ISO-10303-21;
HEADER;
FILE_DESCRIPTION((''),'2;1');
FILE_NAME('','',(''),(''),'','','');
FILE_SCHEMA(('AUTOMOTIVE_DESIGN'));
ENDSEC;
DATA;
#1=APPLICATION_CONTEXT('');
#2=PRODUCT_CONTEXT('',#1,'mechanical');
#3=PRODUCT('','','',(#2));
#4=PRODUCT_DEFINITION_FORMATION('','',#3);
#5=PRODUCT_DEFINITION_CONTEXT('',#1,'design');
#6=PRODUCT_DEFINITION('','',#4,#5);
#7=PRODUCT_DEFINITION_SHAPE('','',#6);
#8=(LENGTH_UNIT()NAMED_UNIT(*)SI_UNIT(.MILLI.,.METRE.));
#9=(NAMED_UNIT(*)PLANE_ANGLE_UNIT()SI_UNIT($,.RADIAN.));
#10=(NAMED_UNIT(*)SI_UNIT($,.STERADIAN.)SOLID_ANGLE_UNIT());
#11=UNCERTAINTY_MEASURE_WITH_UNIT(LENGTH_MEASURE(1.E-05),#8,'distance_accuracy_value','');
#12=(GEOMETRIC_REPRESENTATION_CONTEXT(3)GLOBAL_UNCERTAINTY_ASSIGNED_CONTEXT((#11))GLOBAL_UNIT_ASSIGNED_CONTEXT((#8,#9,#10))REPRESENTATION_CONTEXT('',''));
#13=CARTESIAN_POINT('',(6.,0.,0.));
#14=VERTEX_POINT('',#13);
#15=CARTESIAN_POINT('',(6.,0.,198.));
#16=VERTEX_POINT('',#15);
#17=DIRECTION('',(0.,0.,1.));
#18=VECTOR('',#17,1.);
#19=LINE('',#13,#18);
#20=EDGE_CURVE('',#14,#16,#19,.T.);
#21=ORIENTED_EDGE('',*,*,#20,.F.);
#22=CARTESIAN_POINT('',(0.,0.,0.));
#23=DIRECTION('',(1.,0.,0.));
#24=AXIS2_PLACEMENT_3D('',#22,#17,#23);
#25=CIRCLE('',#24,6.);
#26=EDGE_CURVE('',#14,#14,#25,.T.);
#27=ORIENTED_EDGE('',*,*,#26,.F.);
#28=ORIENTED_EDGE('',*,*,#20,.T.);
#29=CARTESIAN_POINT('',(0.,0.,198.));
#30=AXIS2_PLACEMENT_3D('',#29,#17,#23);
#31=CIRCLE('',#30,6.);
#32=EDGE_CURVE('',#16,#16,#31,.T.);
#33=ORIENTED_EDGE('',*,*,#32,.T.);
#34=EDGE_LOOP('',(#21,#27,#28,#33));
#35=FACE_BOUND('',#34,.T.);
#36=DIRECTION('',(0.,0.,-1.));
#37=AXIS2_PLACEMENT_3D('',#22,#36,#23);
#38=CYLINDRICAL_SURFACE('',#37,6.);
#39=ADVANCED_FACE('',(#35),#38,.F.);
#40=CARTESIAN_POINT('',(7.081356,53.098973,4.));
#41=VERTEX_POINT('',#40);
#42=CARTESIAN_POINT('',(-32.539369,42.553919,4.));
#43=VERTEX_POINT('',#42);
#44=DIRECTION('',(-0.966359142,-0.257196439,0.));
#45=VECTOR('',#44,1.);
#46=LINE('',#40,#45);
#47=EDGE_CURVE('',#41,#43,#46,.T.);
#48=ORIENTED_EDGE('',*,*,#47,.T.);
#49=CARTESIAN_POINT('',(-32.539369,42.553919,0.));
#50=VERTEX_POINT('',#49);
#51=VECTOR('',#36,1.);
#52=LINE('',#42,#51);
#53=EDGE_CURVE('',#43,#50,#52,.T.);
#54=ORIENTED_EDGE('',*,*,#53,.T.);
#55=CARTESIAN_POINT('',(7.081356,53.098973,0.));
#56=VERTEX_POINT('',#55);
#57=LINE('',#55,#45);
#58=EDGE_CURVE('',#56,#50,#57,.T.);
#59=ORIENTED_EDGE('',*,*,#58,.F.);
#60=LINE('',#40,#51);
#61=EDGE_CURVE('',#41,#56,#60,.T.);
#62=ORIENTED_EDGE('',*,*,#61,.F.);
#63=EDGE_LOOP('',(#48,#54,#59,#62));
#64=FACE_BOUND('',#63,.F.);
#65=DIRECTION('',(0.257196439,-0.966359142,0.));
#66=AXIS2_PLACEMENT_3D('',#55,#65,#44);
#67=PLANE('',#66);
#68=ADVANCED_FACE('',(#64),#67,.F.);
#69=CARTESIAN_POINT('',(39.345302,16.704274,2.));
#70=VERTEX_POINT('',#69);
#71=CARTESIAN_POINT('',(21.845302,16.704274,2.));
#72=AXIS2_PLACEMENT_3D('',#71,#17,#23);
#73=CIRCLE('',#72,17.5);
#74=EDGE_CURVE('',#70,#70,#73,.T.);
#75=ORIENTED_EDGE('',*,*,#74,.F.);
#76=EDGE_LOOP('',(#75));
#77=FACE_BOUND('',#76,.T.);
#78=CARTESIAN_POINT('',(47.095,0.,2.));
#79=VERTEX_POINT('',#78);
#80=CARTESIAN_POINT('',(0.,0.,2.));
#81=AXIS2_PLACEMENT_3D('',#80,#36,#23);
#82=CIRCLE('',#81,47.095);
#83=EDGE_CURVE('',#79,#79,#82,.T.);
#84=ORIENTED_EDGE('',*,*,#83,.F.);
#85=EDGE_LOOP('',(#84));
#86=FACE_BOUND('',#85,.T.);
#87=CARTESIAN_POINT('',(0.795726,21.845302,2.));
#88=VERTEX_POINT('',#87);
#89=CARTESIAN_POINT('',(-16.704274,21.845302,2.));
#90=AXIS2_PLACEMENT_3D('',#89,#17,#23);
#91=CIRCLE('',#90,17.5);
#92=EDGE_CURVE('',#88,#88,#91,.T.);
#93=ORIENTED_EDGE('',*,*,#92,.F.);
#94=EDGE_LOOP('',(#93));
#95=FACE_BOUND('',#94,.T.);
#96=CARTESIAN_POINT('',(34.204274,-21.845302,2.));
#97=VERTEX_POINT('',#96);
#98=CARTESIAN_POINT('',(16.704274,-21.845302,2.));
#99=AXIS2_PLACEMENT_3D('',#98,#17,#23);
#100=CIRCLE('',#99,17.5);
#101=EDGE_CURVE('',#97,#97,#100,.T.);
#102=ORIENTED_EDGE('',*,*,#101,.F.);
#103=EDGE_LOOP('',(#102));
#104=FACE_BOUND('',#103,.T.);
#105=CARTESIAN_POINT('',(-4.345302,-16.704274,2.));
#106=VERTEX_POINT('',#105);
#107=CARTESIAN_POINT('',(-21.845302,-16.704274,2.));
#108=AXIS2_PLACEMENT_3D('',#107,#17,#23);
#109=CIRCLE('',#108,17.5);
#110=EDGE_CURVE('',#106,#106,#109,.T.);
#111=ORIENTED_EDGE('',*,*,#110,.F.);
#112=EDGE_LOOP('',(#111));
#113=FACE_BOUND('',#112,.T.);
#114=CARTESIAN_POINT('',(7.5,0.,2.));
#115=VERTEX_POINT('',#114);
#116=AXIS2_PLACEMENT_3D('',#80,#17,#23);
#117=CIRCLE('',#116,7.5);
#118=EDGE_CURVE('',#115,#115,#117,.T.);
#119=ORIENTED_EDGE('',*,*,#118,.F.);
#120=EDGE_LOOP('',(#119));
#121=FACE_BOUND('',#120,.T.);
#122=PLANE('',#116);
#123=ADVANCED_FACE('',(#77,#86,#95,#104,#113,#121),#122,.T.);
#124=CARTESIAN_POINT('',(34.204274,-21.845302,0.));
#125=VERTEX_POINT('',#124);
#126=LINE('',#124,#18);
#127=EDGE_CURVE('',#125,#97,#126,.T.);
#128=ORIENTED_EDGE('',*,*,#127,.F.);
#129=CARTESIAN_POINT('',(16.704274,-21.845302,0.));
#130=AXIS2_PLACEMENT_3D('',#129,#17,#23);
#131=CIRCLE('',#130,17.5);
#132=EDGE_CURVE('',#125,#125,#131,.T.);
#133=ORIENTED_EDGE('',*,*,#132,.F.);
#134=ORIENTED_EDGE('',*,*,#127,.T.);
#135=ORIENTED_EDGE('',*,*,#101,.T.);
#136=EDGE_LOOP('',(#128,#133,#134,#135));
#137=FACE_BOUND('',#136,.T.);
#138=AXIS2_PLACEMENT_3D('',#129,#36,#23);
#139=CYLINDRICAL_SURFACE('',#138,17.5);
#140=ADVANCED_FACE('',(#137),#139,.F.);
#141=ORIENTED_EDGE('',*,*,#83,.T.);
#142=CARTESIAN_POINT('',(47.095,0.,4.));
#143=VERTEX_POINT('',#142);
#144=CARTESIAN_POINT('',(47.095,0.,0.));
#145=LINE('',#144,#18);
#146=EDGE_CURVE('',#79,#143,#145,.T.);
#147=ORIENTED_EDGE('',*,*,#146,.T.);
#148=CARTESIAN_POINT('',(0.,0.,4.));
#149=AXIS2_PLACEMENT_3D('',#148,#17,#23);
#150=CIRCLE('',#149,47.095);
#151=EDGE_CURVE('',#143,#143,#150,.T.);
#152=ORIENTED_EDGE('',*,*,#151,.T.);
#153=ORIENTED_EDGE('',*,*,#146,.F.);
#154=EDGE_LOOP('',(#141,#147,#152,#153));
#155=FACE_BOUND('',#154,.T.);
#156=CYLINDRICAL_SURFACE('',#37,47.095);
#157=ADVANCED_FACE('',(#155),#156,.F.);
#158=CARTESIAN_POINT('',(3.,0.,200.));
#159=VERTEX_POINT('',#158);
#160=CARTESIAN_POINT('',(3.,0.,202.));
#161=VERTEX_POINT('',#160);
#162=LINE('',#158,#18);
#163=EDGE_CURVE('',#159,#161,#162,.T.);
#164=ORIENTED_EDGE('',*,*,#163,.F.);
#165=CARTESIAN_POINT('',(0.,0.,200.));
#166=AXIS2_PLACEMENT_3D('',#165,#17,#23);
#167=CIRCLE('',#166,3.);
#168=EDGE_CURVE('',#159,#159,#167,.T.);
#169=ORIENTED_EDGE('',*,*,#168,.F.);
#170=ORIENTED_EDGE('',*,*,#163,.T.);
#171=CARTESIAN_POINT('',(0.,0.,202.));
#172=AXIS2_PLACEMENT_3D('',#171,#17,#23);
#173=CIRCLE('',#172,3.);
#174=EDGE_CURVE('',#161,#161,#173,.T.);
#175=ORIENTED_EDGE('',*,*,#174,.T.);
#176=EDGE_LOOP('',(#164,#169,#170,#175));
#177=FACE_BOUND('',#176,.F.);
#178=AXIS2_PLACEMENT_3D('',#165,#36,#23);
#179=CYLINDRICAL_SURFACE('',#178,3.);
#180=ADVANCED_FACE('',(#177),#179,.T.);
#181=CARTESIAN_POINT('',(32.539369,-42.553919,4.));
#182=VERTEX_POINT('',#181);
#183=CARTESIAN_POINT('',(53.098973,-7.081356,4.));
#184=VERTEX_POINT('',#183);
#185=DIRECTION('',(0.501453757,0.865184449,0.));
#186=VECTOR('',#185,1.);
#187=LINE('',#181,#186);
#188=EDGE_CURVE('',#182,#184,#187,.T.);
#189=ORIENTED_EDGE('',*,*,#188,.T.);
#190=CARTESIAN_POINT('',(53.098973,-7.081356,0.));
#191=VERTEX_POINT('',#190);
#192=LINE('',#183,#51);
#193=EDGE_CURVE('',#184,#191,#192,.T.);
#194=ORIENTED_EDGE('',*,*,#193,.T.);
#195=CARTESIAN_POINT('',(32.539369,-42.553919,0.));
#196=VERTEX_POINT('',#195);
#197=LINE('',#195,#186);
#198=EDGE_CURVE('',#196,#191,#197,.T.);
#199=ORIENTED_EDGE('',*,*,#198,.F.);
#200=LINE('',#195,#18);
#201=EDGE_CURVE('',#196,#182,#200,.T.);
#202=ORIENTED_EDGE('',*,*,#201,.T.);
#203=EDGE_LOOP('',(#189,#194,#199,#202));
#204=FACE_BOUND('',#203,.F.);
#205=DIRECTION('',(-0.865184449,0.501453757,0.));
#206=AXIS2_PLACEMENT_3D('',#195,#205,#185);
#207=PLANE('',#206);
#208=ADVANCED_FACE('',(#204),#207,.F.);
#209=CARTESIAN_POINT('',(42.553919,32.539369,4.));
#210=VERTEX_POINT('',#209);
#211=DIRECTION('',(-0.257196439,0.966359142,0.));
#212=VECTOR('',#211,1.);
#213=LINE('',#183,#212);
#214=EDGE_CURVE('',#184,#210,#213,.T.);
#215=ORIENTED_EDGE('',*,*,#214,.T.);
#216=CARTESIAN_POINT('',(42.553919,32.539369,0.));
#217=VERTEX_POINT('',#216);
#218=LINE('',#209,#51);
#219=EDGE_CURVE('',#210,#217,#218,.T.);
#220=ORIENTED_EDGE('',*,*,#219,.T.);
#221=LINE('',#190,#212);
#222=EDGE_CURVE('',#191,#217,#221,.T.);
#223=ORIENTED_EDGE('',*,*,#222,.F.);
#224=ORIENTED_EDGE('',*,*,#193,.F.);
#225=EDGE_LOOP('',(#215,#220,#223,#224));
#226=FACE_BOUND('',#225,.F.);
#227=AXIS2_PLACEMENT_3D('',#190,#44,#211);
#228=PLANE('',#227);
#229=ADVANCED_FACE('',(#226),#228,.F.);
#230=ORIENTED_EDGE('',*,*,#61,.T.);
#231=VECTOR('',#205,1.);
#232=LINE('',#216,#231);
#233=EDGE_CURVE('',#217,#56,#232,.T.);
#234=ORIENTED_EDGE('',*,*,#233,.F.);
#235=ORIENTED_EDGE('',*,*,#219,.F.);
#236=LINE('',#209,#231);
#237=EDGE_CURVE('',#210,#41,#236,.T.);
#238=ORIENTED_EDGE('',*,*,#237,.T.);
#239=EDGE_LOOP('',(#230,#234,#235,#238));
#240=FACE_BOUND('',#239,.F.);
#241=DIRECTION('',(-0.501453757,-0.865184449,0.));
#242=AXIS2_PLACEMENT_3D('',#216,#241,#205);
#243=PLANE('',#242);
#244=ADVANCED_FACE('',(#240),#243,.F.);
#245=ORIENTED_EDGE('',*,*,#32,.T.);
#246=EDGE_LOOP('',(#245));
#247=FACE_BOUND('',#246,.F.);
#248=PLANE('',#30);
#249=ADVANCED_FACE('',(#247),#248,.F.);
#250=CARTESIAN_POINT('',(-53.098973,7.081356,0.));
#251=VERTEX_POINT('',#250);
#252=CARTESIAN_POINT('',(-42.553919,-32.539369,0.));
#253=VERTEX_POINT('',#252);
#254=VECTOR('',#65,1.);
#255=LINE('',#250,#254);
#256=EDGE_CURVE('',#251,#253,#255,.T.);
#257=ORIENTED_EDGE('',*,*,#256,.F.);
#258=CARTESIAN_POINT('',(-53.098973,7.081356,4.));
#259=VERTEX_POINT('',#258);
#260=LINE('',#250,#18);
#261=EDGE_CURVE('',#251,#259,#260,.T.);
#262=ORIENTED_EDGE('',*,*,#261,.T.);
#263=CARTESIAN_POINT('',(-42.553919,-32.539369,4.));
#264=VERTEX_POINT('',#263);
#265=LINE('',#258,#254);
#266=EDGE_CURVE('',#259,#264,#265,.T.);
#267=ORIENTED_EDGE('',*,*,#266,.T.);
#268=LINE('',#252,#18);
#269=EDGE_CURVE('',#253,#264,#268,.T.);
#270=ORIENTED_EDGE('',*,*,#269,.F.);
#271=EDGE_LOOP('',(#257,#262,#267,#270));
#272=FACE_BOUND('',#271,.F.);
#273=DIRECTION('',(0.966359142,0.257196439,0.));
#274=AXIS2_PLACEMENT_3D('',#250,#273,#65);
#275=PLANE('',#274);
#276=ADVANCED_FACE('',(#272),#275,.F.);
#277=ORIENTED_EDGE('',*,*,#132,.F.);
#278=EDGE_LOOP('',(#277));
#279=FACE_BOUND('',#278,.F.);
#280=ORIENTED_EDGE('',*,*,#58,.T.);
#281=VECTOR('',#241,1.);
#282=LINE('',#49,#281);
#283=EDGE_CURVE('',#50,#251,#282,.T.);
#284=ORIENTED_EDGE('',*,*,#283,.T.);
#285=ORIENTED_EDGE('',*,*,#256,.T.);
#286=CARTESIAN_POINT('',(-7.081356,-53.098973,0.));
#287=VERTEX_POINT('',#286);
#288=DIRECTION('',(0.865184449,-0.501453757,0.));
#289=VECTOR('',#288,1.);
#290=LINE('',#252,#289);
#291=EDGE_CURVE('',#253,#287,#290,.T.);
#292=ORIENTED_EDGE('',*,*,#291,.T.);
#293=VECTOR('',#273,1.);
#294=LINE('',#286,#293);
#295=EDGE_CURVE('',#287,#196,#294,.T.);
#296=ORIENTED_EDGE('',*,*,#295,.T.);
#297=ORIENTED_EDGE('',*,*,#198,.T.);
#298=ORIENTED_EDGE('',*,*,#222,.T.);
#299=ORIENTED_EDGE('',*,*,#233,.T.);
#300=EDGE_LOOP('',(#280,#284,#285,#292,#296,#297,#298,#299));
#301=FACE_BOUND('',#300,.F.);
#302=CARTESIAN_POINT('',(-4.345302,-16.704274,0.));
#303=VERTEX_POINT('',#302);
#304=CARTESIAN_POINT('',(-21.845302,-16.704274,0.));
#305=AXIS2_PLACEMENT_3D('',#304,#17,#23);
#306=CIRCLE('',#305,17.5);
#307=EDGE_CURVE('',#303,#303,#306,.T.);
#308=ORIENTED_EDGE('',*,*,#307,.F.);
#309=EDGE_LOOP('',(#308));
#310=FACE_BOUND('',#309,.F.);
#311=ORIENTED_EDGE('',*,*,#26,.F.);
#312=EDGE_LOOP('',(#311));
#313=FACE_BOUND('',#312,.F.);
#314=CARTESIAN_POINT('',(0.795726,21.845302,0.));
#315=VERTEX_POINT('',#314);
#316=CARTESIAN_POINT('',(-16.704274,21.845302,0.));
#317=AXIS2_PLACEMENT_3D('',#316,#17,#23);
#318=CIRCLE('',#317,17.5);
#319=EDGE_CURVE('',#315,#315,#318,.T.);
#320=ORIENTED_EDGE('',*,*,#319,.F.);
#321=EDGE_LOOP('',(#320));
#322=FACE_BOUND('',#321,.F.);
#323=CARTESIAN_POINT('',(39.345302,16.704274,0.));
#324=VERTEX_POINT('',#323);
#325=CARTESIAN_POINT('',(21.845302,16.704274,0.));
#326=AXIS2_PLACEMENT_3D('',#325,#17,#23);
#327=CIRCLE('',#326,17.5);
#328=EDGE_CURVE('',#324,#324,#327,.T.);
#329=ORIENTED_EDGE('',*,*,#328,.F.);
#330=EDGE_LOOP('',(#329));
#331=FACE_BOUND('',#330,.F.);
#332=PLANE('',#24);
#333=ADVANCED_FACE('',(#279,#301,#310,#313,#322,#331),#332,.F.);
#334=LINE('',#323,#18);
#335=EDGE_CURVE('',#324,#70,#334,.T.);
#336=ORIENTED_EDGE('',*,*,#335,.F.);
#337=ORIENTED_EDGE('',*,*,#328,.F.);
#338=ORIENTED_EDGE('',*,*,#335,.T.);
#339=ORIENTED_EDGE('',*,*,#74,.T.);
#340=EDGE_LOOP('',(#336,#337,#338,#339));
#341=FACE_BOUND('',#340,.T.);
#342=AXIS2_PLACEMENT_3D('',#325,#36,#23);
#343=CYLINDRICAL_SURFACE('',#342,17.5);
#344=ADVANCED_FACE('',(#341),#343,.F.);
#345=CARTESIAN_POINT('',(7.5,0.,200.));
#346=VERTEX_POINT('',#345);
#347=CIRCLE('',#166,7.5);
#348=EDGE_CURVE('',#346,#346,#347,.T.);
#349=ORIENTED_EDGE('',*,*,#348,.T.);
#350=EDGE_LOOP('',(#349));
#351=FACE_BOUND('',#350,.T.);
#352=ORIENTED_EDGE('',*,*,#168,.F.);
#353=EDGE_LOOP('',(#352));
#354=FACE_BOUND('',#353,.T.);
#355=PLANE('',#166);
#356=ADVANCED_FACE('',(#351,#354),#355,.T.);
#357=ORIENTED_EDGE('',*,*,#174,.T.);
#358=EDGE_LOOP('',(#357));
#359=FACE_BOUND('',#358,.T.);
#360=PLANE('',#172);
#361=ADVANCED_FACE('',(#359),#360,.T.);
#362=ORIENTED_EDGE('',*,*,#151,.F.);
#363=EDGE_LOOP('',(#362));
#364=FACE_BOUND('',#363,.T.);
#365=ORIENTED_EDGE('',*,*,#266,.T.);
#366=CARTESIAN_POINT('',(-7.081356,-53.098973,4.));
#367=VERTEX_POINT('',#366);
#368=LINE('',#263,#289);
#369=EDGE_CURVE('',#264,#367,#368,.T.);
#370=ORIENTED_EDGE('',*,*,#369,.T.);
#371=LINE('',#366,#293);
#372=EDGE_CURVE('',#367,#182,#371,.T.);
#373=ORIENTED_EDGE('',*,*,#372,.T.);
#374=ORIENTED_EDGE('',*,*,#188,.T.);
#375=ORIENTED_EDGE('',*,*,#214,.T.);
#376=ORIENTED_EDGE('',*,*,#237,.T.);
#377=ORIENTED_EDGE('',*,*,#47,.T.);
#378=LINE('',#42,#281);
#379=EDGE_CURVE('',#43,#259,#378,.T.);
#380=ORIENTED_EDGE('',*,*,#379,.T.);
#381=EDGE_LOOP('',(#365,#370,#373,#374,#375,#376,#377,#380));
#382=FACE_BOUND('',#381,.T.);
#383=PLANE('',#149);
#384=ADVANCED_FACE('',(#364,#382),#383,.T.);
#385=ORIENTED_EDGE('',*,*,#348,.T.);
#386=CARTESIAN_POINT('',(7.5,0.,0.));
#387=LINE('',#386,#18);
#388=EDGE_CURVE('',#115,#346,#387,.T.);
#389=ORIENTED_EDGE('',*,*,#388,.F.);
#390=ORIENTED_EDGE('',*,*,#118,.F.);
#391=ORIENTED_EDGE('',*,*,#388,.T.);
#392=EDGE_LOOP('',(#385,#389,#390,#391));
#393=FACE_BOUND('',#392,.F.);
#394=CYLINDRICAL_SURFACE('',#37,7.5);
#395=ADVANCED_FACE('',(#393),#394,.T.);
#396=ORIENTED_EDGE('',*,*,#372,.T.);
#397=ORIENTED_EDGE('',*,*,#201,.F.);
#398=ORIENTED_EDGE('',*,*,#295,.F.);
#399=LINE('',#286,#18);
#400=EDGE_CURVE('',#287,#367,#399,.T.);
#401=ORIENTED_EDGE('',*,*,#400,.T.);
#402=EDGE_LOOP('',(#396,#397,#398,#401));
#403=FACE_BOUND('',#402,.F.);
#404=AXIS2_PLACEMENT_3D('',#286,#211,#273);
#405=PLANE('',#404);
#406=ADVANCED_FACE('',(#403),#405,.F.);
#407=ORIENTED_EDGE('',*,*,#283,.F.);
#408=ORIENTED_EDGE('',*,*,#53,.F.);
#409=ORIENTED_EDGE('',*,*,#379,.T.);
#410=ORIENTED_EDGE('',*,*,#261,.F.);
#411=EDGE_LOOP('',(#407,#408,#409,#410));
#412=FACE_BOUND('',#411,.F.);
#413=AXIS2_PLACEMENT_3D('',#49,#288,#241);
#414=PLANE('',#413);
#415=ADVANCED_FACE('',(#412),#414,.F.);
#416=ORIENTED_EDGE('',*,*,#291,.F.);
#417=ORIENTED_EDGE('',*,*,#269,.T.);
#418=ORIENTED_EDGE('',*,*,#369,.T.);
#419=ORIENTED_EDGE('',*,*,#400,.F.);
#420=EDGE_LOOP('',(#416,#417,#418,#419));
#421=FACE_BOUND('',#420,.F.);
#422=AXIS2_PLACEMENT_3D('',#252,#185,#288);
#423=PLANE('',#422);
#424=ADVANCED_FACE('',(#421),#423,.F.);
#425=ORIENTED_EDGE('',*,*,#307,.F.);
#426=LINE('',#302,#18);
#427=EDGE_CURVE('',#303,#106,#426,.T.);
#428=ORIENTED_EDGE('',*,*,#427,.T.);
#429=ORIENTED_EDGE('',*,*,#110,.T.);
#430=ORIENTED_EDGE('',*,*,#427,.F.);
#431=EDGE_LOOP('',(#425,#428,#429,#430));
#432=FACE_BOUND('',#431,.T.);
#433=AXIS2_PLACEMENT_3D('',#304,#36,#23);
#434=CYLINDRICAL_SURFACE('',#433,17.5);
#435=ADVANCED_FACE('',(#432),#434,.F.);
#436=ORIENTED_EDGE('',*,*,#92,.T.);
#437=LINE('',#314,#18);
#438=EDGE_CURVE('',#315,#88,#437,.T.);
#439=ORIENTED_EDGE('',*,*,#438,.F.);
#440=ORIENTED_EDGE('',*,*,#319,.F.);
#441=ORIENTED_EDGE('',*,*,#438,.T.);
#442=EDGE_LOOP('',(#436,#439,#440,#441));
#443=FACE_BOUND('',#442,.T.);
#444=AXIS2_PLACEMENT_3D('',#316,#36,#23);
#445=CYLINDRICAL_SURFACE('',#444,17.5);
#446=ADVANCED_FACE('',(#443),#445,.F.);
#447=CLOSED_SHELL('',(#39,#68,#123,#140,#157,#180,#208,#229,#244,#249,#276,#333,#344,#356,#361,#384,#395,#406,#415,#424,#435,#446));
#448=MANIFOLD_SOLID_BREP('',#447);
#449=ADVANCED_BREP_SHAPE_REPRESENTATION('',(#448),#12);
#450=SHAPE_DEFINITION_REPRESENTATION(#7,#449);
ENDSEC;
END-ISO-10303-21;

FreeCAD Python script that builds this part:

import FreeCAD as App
import Part
import Sketcher


def add_polygon(sketch, points):
    """Adds a closed chain of lines whose ends are joined by coincident constraints."""
    first, n = sketch.GeometryCount, len(points)
    for a, b in zip(points, points[1:] + points[:1]):
        sketch.addGeometry(Part.LineSegment(App.Vector(*a, 0), App.Vector(*b, 0)), False)
    for i in range(n):
        sketch.addConstraint(Sketcher.Constraint("Coincident", first + i, 2, first + (i + 1) % n, 1))

doc = App.newDocument("Part")
body = doc.addObject("PartDesign::Body", "Body")

# Sketch on XY plane
sketch1 = body.newObject("Sketcher::SketchObject", "Sketch")
sketch1.AttachmentSupport = (doc.getObject("XY_Plane"), [""])
sketch1.MapMode = "FlatFace"
sketch1.addGeometry(Part.Circle(App.Vector(0, 0, 0), App.Vector(0, 0, 1), 7.5), False)
sketch1.addConstraint([
    Sketcher.Constraint("Coincident", 0, 3, -1, 1),
    Sketcher.Constraint("Diameter", 0, 15.0),
])
pad1 = body.newObject("PartDesign::Pad", "Pad")
pad1.Profile = sketch1
pad1.Length = 200

# Sketch on XY plane
sketch2 = body.newObject("Sketcher::SketchObject", "Sketch001")
sketch2.AttachmentSupport = (doc.getObject("XY_Plane"), [""])
sketch2.MapMode = "FlatFace"
sketch2.addGeometry(Part.Circle(App.Vector(0, 0, 0), App.Vector(0, 0, 1), 6), False)
sketch2.addConstraint([
    Sketcher.Constraint("Coincident", 0, 3, -1, 1),
    Sketcher.Constraint("Diameter", 0, 12.0),
])
pocket1 = body.newObject("PartDesign::Pocket", "Pocket")
pocket1.Profile = sketch2
pocket1.Length = 198
pocket1.Reversed = True

# Sketch on XY plane
sketch3 = body.newObject("Sketcher::SketchObject", "Sketch002")
sketch3.AttachmentSupport = (doc.getObject("XY_Plane"), [""])
sketch3.MapMode = "FlatFace"
add_polygon(sketch3, [(-32.539369, 42.553919), (-53.098973, 7.081356), (-42.553919, -32.539369), (-7.081356, -53.098973), (32.539369, -42.553919), (53.098973, -7.081356), (42.553919, 32.539369), (7.081356, 53.098973)])  # lines 0-7
sketch3.addGeometry(Part.Circle(App.Vector(-21.845302, -16.704274, 0), App.Vector(0, 0, 1), 17.5), False)  # 8
sketch3.addGeometry(Part.Circle(App.Vector(16.704274, -21.845302, 0), App.Vector(0, 0, 1), 17.5), False)  # 9
sketch3.addGeometry(Part.Circle(App.Vector(0, 0, 0), App.Vector(0, 0, 1), 7.5), False)  # 10
sketch3.addGeometry(Part.Circle(App.Vector(-16.704274, 21.845302, 0), App.Vector(0, 0, 1), 17.5), False)  # 11
sketch3.addGeometry(Part.Circle(App.Vector(21.845302, 16.704274, 0), App.Vector(0, 0, 1), 17.5), False)  # 12
sketch3.addConstraint([
    Sketcher.Constraint("Coincident", 10, 3, -1, 1),
    Sketcher.Constraint("Equal", 8, 9),
    Sketcher.Constraint("Equal", 9, 11),
    Sketcher.Constraint("Equal", 11, 12),
    Sketcher.Constraint("Symmetric", 9, 3, 11, 3, -1, 1),
    Sketcher.Constraint("Symmetric", 8, 3, 12, 3, -1, 1),
    Sketcher.Constraint("Symmetric", 0, 2, 4, 2, -1, 1),
    Sketcher.Constraint("Symmetric", 1, 2, 5, 2, -1, 1),
    Sketcher.Constraint("Symmetric", 2, 2, 6, 2, -1, 1),
    Sketcher.Constraint("Symmetric", 3, 2, 7, 2, -1, 1),
    Sketcher.Constraint("Perpendicular", 0, 2),
    Sketcher.Constraint("Perpendicular", 1, 3),
    Sketcher.Constraint("Equal", 0, 1),
    Sketcher.Constraint("Equal", 1, 2),
    Sketcher.Constraint("Equal", 2, 3),
    Sketcher.Constraint("Diameter", 8, 35.0),
    Sketcher.Constraint("Diameter", 10, 15.0),
    Sketcher.Constraint("Distance", 0, 41.0),
    Sketcher.Constraint("DistanceX", 8, 3, -1, 1, 21.845302),
    Sketcher.Constraint("DistanceY", 9, 3, -1, 1, 21.845302),
    Sketcher.Constraint("DistanceX", 0, 2, 11, 3, 36.394698),
    Sketcher.Constraint("DistanceY", 2, 2, 8, 3, 36.394698),
    Sketcher.Constraint("DistanceX", 1, 2, -1, 1, 42.553919),
    Sketcher.Constraint("DistanceY", 1, 2, -1, 1, 32.539369),
])
pad2 = body.newObject("PartDesign::Pad", "Pad001")
pad2.Profile = sketch3
pad2.Length = 2

# Sketch on XY plane
sketch4 = body.newObject("Sketcher::SketchObject", "Sketch003")
sketch4.AttachmentSupport = (doc.getObject("XY_Plane"), [""])
sketch4.MapMode = "FlatFace"
add_polygon(sketch4, [(-32.539369, 42.553919), (-53.098973, 7.081356), (-42.553919, -32.539369), (-7.081356, -53.098973), (32.539369, -42.553919), (53.098973, -7.081356), (42.553919, 32.539369), (7.081356, 53.098973)])  # lines 0-7
sketch4.addGeometry(Part.Circle(App.Vector(0, 0, 0), App.Vector(0, 0, 1), 47.095), False)  # 8
sketch4.addConstraint([
    Sketcher.Constraint("Coincident", 8, 3, -1, 1),
    Sketcher.Constraint("Symmetric", 0, 2, 4, 2, -1, 1),
    Sketcher.Constraint("Symmetric", 1, 2, 5, 2, -1, 1),
    Sketcher.Constraint("Symmetric", 2, 2, 6, 2, -1, 1),
    Sketcher.Constraint("Symmetric", 3, 2, 7, 2, -1, 1),
    Sketcher.Constraint("Perpendicular", 0, 2),
    Sketcher.Constraint("Perpendicular", 1, 3),
    Sketcher.Constraint("Equal", 0, 1),
    Sketcher.Constraint("Equal", 1, 2),
    Sketcher.Constraint("Equal", 2, 3),
    Sketcher.Constraint("Diameter", 8, 94.19),
    Sketcher.Constraint("Distance", 0, 41.0),
    Sketcher.Constraint("DistanceX", 1, 2, -1, 1, 42.553919),
    Sketcher.Constraint("DistanceY", 1, 2, -1, 1, 32.539369),
])
pad3 = body.newObject("PartDesign::Pad", "Pad002")
pad3.Profile = sketch4
pad3.Length = 4

# Sketch on XY plane
sketch5 = body.newObject("Sketcher::SketchObject", "Sketch004")
sketch5.AttachmentSupport = (doc.getObject("XY_Plane"), [""])
sketch5.MapMode = "FlatFace"
sketch5.AttachmentOffset = App.Placement(App.Vector(0, 0, 200), App.Rotation())
sketch5.addGeometry(Part.Circle(App.Vector(0, 0, 0), App.Vector(0, 0, 1), 3), False)
sketch5.addConstraint([
    Sketcher.Constraint("Coincident", 0, 3, -1, 1),
    Sketcher.Constraint("Diameter", 0, 6.0),
])
pad4 = body.newObject("PartDesign::Pad", "Pad003")
pad4.Profile = sketch5
pad4.Length = 2

doc.recompute()
